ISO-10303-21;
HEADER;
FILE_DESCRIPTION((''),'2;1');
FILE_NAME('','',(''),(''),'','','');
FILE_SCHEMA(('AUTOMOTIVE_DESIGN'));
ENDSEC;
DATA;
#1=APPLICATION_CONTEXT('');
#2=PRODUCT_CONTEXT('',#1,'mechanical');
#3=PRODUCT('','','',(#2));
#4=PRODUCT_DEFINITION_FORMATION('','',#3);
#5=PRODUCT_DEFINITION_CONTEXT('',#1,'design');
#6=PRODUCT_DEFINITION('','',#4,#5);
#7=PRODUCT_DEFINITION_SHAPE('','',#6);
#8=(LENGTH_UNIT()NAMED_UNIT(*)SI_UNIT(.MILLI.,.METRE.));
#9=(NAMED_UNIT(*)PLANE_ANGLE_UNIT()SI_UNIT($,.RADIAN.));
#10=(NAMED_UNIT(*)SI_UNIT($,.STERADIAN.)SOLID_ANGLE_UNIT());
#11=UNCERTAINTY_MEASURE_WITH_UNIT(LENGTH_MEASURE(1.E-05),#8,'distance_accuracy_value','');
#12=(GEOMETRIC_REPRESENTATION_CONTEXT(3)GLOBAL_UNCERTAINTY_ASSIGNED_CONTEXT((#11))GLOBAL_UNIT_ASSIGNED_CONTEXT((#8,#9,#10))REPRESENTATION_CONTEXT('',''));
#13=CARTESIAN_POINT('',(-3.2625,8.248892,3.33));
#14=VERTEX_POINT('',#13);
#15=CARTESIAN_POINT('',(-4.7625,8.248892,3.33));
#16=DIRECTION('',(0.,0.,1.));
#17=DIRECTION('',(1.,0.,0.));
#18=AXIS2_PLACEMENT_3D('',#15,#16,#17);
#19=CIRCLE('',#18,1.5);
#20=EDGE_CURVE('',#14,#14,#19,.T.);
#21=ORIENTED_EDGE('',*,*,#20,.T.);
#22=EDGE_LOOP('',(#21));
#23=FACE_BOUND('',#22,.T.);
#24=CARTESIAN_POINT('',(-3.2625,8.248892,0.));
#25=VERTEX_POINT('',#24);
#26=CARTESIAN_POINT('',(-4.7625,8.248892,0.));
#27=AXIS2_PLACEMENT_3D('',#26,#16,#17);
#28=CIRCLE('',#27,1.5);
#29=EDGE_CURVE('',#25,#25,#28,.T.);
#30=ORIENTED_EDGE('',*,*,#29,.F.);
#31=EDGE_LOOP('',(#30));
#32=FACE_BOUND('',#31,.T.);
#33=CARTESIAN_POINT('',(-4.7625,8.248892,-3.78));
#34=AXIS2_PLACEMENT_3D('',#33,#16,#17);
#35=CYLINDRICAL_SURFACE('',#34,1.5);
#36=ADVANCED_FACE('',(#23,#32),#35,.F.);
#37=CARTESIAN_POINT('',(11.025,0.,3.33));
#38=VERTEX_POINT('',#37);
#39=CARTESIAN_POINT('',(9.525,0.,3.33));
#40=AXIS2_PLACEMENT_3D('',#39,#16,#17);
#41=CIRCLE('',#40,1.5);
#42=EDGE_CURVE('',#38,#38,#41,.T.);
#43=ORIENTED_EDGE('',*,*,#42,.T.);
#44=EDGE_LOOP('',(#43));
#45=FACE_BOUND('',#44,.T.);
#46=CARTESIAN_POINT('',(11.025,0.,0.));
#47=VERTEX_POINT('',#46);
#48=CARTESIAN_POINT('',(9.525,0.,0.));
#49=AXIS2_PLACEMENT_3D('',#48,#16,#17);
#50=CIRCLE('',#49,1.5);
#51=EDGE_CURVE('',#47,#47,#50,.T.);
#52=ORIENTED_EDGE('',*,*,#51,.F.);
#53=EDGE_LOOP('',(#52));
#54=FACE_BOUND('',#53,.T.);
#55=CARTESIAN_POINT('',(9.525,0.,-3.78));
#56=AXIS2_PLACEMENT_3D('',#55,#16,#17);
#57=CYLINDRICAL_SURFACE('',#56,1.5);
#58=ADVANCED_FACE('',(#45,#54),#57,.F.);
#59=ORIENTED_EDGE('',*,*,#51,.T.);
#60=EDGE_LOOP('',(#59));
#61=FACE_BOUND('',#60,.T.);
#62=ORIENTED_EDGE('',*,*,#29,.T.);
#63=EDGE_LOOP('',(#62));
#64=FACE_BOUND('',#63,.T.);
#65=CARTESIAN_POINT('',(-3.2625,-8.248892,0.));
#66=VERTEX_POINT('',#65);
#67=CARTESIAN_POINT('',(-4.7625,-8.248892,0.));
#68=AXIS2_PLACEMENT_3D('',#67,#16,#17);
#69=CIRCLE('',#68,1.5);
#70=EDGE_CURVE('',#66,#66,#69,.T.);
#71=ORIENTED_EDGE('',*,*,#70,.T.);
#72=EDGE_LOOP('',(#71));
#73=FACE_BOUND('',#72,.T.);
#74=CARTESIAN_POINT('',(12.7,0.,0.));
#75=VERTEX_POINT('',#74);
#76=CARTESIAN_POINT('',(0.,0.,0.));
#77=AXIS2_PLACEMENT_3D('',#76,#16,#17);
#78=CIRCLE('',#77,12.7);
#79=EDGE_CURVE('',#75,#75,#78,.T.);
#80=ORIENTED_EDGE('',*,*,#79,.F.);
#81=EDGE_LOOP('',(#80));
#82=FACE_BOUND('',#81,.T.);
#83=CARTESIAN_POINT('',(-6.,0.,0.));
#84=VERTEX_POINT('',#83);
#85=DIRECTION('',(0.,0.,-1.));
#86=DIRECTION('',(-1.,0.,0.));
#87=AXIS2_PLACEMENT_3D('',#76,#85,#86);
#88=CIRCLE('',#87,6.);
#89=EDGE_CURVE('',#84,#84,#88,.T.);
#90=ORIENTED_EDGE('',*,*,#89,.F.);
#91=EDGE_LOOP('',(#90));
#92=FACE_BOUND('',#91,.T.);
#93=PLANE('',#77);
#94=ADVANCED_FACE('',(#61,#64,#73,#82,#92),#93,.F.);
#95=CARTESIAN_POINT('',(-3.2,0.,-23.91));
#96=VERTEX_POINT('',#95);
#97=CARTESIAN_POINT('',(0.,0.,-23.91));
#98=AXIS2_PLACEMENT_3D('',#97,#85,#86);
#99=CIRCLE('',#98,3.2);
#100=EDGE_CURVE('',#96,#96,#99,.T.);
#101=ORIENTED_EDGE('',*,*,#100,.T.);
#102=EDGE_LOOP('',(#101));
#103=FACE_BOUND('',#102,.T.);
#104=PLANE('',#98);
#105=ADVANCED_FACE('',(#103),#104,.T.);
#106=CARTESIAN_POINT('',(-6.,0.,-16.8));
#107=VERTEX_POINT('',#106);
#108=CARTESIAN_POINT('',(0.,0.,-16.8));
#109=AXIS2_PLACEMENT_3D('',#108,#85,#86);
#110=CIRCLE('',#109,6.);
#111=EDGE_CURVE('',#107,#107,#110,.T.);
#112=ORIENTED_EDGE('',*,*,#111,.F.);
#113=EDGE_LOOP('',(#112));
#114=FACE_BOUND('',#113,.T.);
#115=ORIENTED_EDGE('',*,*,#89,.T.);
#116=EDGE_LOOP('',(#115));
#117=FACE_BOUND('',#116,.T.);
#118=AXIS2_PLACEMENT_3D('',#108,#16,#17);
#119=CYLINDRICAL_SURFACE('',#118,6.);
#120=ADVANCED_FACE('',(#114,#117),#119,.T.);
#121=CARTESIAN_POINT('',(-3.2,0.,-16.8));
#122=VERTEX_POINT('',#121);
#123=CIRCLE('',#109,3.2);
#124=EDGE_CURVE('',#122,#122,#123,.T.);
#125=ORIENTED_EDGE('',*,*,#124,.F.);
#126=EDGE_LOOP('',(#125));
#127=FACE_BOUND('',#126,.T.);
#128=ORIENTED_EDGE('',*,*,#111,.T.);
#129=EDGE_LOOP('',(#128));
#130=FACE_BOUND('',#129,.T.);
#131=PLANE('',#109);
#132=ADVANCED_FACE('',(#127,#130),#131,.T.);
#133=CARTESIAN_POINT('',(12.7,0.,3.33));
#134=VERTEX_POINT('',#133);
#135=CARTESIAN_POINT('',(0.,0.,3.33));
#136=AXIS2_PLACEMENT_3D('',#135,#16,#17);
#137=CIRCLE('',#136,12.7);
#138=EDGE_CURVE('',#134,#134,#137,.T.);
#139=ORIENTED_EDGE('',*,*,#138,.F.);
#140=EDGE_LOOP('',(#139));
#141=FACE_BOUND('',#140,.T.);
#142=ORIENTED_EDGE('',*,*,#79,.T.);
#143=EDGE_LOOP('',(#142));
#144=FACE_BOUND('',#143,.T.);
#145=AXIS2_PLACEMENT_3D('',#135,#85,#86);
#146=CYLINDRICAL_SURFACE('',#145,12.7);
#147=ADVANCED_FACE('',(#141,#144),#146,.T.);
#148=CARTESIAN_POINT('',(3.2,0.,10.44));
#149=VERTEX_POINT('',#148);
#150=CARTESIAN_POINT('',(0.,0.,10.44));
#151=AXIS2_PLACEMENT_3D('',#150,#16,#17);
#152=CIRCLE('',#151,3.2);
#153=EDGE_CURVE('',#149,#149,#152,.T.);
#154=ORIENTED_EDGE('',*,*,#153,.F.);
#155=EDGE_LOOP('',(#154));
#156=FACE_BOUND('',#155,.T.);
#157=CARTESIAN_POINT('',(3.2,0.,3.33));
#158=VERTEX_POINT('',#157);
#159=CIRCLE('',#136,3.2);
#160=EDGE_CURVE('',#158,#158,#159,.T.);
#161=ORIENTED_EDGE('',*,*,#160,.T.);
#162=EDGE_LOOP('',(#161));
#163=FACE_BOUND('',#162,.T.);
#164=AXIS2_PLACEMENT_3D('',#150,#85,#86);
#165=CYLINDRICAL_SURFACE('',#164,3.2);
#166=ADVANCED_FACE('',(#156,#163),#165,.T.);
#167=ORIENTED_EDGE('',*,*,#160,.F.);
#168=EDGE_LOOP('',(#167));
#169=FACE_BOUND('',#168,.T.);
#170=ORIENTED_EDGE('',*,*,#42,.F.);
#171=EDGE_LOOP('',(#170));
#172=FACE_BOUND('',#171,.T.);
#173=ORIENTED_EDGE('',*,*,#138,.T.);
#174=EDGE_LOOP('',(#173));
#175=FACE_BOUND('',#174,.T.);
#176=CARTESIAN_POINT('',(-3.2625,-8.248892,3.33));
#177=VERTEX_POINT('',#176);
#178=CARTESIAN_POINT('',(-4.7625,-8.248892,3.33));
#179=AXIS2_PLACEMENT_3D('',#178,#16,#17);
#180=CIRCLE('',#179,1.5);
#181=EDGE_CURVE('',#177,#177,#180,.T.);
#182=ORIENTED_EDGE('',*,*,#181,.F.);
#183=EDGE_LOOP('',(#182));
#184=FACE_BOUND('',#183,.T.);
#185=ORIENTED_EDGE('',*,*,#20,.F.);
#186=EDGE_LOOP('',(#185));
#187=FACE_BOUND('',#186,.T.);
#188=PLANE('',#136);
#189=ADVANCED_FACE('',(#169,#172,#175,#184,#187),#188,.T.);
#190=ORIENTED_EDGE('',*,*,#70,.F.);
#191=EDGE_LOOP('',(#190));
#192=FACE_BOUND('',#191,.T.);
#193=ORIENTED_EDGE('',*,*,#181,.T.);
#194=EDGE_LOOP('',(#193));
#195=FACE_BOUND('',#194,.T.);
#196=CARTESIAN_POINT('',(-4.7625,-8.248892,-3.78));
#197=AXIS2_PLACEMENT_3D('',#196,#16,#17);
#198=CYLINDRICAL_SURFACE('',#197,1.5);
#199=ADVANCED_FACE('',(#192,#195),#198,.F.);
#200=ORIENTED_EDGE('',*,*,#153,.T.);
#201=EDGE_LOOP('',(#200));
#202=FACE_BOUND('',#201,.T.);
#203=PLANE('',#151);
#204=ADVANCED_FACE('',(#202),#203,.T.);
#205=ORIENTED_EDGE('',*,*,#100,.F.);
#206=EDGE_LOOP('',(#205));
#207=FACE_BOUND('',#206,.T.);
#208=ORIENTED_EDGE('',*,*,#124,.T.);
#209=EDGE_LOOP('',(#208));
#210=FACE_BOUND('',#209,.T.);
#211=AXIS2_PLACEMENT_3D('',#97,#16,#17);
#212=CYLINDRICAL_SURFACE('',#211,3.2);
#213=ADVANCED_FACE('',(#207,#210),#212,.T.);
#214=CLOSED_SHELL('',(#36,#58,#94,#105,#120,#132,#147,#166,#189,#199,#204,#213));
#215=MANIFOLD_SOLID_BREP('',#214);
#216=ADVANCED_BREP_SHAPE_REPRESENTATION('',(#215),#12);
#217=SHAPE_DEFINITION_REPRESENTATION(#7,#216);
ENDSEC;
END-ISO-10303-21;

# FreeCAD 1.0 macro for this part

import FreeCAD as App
import Part
import Sketcher
Q = App.Units.Quantity

doc = App.newDocument("Part")
params = doc.addObject("Spreadsheet::Sheet", "Params")
for row, (alias, value) in enumerate([
    ("sketch1_diameter", "25.4 mm"),
    ("pad1_length", "3.33 mm"),
    ("sketch2_diameter", "6.4 mm"),
    ("pad2_length", "7.11 mm"),
    ("sketch3_diameter", "12 mm"),
    ("pad3_length", "16.8 mm"),
    ("sketch4_diameter", "6.4 mm"),
    ("pad4_length", "7.11 mm"),
    ("sketch5_diameter", "3 mm"),
    ("pocket1_length", "7.11 mm"),
], start=1):
    params.set(f"A{row}", alias)
    params.set(f"B{row}", "=" + value)
    params.setAlias(f"B{row}", alias)

body = doc.addObject("PartDesign::Body", "Body")

# Sketch on XY plane
sketch1 = body.newObject("Sketcher::SketchObject", "Sketch")
sketch1.AttachmentSupport = (doc.getObject("XY_Plane"), [""])
sketch1.MapMode = "FlatFace"
sketch1.addGeometry(Part.Circle(App.Vector(0, 0, 0), App.Vector(0, 0, 1), 12.7), False)
sketch1.addConstraint([
    Sketcher.Constraint("Coincident", 0, 3, -1, 1),
    Sketcher.Constraint("Diameter", 0, Q("25.4 mm")),
])
sketch1.setExpression("Constraints[1]", "Params.sketch1_diameter")
pad1 = body.newObject("PartDesign::Pad", "Pad")
pad1.Profile = sketch1
pad1.setExpression("Length", "Params.pad1_length")

# Sketch on XY plane
sketch2 = body.newObject("Sketcher::SketchObject", "Sketch001")
sketch2.AttachmentSupport = (doc.getObject("XY_Plane"), [""])
sketch2.MapMode = "FlatFace"
sketch2.AttachmentOffset = App.Placement(App.Vector(0, 0, 3.33), App.Rotation())
sketch2.addGeometry(Part.Circle(App.Vector(0, 0, 0), App.Vector(0, 0, 1), 3.2), False)
sketch2.addConstraint([
    Sketcher.Constraint("Coincident", 0, 3, -1, 1),
    Sketcher.Constraint("Diameter", 0, Q("6.4 mm")),
])
sketch2.setExpression("Constraints[1]", "Params.sketch2_diameter")
pad2 = body.newObject("PartDesign::Pad", "Pad001")
pad2.Profile = sketch2
pad2.setExpression("Length", "Params.pad2_length")

# Sketch on XY plane
sketch3 = body.newObject("Sketcher::SketchObject", "Sketch002")
sketch3.AttachmentSupport = (doc.getObject("XY_Plane"), [""])
sketch3.MapMode = "FlatFace"
sketch3.addGeometry(Part.Circle(App.Vector(0, 0, 0), App.Vector(0, 0, 1), 6), False)
sketch3.addConstraint([
    Sketcher.Constraint("Coincident", 0, 3, -1, 1),
    Sketcher.Constraint("Diameter", 0, Q("12 mm")),
])
sketch3.setExpression("Constraints[1]", "Params.sketch3_diameter")
pad3 = body.newObject("PartDesign::Pad", "Pad002")
pad3.Profile = sketch3
pad3.setExpression("Length", "Params.pad3_length")
pad3.Reversed = True

# Sketch on XY plane
sketch4 = body.newObject("Sketcher::SketchObject", "Sketch003")
sketch4.AttachmentSupport = (doc.getObject("XY_Plane"), [""])
sketch4.MapMode = "FlatFace"
sketch4.AttachmentOffset = App.Placement(App.Vector(0, 0, -16.8), App.Rotation())
sketch4.addGeometry(Part.Circle(App.Vector(0, 0, 0), App.Vector(0, 0, 1), 3.2), False)
sketch4.addConstraint([
    Sketcher.Constraint("Coincident", 0, 3, -1, 1),
    Sketcher.Constraint("Diameter", 0, Q("6.4 mm")),
])
sketch4.setExpression("Constraints[1]", "Params.sketch4_diameter")
pad4 = body.newObject("PartDesign::Pad", "Pad003")
pad4.Profile = sketch4
pad4.setExpression("Length", "Params.pad4_length")
pad4.Reversed = True

# Sketch on XY plane
sketch5 = body.newObject("Sketcher::SketchObject", "Sketch004")
sketch5.AttachmentSupport = (doc.getObject("XY_Plane"), [""])
sketch5.MapMode = "FlatFace"
sketch5.AttachmentOffset = App.Placement(App.Vector(0, 0, 3.33), App.Rotation())
sketch5.addGeometry([
    Part.Circle(App.Vector(9.525, 0, 0), App.Vector(0, 0, 1), 1.5),
    Part.Circle(App.Vector(-4.7625, -8.248892, 0), App.Vector(0, 0, 1), 1.5),
    Part.Circle(App.Vector(-4.7625, 8.248892, 0), App.Vector(0, 0, 1), 1.5),
], False)
sketch5.addConstraint([
    Sketcher.Constraint("Equal", 0, 1),
    Sketcher.Constraint("Equal", 1, 2),
    Sketcher.Constraint("Symmetric", 1, 3, 2, 3, -1),
    Sketcher.Constraint("PointOnObject", 0, 3, -1),
    Sketcher.Constraint("Diameter", 0, Q("3 mm")),
    Sketcher.Constraint("DistanceX", -1, 1, 0, 3, Q("9.525 mm")),
    Sketcher.Constraint("DistanceX", 1, 3, -1, 1, Q("4.7625 mm")),
    Sketcher.Constraint("DistanceY", 1, 3, -1, 1, Q("8.248892 mm")),
])
sketch5.setExpression("Constraints[4]", "Params.sketch5_diameter")
pocket1 = body.newObject("PartDesign::Pocket", "Pocket")
pocket1.Profile = sketch5
pocket1.setExpression("Length", "Params.pocket1_length")

doc.recompute()
